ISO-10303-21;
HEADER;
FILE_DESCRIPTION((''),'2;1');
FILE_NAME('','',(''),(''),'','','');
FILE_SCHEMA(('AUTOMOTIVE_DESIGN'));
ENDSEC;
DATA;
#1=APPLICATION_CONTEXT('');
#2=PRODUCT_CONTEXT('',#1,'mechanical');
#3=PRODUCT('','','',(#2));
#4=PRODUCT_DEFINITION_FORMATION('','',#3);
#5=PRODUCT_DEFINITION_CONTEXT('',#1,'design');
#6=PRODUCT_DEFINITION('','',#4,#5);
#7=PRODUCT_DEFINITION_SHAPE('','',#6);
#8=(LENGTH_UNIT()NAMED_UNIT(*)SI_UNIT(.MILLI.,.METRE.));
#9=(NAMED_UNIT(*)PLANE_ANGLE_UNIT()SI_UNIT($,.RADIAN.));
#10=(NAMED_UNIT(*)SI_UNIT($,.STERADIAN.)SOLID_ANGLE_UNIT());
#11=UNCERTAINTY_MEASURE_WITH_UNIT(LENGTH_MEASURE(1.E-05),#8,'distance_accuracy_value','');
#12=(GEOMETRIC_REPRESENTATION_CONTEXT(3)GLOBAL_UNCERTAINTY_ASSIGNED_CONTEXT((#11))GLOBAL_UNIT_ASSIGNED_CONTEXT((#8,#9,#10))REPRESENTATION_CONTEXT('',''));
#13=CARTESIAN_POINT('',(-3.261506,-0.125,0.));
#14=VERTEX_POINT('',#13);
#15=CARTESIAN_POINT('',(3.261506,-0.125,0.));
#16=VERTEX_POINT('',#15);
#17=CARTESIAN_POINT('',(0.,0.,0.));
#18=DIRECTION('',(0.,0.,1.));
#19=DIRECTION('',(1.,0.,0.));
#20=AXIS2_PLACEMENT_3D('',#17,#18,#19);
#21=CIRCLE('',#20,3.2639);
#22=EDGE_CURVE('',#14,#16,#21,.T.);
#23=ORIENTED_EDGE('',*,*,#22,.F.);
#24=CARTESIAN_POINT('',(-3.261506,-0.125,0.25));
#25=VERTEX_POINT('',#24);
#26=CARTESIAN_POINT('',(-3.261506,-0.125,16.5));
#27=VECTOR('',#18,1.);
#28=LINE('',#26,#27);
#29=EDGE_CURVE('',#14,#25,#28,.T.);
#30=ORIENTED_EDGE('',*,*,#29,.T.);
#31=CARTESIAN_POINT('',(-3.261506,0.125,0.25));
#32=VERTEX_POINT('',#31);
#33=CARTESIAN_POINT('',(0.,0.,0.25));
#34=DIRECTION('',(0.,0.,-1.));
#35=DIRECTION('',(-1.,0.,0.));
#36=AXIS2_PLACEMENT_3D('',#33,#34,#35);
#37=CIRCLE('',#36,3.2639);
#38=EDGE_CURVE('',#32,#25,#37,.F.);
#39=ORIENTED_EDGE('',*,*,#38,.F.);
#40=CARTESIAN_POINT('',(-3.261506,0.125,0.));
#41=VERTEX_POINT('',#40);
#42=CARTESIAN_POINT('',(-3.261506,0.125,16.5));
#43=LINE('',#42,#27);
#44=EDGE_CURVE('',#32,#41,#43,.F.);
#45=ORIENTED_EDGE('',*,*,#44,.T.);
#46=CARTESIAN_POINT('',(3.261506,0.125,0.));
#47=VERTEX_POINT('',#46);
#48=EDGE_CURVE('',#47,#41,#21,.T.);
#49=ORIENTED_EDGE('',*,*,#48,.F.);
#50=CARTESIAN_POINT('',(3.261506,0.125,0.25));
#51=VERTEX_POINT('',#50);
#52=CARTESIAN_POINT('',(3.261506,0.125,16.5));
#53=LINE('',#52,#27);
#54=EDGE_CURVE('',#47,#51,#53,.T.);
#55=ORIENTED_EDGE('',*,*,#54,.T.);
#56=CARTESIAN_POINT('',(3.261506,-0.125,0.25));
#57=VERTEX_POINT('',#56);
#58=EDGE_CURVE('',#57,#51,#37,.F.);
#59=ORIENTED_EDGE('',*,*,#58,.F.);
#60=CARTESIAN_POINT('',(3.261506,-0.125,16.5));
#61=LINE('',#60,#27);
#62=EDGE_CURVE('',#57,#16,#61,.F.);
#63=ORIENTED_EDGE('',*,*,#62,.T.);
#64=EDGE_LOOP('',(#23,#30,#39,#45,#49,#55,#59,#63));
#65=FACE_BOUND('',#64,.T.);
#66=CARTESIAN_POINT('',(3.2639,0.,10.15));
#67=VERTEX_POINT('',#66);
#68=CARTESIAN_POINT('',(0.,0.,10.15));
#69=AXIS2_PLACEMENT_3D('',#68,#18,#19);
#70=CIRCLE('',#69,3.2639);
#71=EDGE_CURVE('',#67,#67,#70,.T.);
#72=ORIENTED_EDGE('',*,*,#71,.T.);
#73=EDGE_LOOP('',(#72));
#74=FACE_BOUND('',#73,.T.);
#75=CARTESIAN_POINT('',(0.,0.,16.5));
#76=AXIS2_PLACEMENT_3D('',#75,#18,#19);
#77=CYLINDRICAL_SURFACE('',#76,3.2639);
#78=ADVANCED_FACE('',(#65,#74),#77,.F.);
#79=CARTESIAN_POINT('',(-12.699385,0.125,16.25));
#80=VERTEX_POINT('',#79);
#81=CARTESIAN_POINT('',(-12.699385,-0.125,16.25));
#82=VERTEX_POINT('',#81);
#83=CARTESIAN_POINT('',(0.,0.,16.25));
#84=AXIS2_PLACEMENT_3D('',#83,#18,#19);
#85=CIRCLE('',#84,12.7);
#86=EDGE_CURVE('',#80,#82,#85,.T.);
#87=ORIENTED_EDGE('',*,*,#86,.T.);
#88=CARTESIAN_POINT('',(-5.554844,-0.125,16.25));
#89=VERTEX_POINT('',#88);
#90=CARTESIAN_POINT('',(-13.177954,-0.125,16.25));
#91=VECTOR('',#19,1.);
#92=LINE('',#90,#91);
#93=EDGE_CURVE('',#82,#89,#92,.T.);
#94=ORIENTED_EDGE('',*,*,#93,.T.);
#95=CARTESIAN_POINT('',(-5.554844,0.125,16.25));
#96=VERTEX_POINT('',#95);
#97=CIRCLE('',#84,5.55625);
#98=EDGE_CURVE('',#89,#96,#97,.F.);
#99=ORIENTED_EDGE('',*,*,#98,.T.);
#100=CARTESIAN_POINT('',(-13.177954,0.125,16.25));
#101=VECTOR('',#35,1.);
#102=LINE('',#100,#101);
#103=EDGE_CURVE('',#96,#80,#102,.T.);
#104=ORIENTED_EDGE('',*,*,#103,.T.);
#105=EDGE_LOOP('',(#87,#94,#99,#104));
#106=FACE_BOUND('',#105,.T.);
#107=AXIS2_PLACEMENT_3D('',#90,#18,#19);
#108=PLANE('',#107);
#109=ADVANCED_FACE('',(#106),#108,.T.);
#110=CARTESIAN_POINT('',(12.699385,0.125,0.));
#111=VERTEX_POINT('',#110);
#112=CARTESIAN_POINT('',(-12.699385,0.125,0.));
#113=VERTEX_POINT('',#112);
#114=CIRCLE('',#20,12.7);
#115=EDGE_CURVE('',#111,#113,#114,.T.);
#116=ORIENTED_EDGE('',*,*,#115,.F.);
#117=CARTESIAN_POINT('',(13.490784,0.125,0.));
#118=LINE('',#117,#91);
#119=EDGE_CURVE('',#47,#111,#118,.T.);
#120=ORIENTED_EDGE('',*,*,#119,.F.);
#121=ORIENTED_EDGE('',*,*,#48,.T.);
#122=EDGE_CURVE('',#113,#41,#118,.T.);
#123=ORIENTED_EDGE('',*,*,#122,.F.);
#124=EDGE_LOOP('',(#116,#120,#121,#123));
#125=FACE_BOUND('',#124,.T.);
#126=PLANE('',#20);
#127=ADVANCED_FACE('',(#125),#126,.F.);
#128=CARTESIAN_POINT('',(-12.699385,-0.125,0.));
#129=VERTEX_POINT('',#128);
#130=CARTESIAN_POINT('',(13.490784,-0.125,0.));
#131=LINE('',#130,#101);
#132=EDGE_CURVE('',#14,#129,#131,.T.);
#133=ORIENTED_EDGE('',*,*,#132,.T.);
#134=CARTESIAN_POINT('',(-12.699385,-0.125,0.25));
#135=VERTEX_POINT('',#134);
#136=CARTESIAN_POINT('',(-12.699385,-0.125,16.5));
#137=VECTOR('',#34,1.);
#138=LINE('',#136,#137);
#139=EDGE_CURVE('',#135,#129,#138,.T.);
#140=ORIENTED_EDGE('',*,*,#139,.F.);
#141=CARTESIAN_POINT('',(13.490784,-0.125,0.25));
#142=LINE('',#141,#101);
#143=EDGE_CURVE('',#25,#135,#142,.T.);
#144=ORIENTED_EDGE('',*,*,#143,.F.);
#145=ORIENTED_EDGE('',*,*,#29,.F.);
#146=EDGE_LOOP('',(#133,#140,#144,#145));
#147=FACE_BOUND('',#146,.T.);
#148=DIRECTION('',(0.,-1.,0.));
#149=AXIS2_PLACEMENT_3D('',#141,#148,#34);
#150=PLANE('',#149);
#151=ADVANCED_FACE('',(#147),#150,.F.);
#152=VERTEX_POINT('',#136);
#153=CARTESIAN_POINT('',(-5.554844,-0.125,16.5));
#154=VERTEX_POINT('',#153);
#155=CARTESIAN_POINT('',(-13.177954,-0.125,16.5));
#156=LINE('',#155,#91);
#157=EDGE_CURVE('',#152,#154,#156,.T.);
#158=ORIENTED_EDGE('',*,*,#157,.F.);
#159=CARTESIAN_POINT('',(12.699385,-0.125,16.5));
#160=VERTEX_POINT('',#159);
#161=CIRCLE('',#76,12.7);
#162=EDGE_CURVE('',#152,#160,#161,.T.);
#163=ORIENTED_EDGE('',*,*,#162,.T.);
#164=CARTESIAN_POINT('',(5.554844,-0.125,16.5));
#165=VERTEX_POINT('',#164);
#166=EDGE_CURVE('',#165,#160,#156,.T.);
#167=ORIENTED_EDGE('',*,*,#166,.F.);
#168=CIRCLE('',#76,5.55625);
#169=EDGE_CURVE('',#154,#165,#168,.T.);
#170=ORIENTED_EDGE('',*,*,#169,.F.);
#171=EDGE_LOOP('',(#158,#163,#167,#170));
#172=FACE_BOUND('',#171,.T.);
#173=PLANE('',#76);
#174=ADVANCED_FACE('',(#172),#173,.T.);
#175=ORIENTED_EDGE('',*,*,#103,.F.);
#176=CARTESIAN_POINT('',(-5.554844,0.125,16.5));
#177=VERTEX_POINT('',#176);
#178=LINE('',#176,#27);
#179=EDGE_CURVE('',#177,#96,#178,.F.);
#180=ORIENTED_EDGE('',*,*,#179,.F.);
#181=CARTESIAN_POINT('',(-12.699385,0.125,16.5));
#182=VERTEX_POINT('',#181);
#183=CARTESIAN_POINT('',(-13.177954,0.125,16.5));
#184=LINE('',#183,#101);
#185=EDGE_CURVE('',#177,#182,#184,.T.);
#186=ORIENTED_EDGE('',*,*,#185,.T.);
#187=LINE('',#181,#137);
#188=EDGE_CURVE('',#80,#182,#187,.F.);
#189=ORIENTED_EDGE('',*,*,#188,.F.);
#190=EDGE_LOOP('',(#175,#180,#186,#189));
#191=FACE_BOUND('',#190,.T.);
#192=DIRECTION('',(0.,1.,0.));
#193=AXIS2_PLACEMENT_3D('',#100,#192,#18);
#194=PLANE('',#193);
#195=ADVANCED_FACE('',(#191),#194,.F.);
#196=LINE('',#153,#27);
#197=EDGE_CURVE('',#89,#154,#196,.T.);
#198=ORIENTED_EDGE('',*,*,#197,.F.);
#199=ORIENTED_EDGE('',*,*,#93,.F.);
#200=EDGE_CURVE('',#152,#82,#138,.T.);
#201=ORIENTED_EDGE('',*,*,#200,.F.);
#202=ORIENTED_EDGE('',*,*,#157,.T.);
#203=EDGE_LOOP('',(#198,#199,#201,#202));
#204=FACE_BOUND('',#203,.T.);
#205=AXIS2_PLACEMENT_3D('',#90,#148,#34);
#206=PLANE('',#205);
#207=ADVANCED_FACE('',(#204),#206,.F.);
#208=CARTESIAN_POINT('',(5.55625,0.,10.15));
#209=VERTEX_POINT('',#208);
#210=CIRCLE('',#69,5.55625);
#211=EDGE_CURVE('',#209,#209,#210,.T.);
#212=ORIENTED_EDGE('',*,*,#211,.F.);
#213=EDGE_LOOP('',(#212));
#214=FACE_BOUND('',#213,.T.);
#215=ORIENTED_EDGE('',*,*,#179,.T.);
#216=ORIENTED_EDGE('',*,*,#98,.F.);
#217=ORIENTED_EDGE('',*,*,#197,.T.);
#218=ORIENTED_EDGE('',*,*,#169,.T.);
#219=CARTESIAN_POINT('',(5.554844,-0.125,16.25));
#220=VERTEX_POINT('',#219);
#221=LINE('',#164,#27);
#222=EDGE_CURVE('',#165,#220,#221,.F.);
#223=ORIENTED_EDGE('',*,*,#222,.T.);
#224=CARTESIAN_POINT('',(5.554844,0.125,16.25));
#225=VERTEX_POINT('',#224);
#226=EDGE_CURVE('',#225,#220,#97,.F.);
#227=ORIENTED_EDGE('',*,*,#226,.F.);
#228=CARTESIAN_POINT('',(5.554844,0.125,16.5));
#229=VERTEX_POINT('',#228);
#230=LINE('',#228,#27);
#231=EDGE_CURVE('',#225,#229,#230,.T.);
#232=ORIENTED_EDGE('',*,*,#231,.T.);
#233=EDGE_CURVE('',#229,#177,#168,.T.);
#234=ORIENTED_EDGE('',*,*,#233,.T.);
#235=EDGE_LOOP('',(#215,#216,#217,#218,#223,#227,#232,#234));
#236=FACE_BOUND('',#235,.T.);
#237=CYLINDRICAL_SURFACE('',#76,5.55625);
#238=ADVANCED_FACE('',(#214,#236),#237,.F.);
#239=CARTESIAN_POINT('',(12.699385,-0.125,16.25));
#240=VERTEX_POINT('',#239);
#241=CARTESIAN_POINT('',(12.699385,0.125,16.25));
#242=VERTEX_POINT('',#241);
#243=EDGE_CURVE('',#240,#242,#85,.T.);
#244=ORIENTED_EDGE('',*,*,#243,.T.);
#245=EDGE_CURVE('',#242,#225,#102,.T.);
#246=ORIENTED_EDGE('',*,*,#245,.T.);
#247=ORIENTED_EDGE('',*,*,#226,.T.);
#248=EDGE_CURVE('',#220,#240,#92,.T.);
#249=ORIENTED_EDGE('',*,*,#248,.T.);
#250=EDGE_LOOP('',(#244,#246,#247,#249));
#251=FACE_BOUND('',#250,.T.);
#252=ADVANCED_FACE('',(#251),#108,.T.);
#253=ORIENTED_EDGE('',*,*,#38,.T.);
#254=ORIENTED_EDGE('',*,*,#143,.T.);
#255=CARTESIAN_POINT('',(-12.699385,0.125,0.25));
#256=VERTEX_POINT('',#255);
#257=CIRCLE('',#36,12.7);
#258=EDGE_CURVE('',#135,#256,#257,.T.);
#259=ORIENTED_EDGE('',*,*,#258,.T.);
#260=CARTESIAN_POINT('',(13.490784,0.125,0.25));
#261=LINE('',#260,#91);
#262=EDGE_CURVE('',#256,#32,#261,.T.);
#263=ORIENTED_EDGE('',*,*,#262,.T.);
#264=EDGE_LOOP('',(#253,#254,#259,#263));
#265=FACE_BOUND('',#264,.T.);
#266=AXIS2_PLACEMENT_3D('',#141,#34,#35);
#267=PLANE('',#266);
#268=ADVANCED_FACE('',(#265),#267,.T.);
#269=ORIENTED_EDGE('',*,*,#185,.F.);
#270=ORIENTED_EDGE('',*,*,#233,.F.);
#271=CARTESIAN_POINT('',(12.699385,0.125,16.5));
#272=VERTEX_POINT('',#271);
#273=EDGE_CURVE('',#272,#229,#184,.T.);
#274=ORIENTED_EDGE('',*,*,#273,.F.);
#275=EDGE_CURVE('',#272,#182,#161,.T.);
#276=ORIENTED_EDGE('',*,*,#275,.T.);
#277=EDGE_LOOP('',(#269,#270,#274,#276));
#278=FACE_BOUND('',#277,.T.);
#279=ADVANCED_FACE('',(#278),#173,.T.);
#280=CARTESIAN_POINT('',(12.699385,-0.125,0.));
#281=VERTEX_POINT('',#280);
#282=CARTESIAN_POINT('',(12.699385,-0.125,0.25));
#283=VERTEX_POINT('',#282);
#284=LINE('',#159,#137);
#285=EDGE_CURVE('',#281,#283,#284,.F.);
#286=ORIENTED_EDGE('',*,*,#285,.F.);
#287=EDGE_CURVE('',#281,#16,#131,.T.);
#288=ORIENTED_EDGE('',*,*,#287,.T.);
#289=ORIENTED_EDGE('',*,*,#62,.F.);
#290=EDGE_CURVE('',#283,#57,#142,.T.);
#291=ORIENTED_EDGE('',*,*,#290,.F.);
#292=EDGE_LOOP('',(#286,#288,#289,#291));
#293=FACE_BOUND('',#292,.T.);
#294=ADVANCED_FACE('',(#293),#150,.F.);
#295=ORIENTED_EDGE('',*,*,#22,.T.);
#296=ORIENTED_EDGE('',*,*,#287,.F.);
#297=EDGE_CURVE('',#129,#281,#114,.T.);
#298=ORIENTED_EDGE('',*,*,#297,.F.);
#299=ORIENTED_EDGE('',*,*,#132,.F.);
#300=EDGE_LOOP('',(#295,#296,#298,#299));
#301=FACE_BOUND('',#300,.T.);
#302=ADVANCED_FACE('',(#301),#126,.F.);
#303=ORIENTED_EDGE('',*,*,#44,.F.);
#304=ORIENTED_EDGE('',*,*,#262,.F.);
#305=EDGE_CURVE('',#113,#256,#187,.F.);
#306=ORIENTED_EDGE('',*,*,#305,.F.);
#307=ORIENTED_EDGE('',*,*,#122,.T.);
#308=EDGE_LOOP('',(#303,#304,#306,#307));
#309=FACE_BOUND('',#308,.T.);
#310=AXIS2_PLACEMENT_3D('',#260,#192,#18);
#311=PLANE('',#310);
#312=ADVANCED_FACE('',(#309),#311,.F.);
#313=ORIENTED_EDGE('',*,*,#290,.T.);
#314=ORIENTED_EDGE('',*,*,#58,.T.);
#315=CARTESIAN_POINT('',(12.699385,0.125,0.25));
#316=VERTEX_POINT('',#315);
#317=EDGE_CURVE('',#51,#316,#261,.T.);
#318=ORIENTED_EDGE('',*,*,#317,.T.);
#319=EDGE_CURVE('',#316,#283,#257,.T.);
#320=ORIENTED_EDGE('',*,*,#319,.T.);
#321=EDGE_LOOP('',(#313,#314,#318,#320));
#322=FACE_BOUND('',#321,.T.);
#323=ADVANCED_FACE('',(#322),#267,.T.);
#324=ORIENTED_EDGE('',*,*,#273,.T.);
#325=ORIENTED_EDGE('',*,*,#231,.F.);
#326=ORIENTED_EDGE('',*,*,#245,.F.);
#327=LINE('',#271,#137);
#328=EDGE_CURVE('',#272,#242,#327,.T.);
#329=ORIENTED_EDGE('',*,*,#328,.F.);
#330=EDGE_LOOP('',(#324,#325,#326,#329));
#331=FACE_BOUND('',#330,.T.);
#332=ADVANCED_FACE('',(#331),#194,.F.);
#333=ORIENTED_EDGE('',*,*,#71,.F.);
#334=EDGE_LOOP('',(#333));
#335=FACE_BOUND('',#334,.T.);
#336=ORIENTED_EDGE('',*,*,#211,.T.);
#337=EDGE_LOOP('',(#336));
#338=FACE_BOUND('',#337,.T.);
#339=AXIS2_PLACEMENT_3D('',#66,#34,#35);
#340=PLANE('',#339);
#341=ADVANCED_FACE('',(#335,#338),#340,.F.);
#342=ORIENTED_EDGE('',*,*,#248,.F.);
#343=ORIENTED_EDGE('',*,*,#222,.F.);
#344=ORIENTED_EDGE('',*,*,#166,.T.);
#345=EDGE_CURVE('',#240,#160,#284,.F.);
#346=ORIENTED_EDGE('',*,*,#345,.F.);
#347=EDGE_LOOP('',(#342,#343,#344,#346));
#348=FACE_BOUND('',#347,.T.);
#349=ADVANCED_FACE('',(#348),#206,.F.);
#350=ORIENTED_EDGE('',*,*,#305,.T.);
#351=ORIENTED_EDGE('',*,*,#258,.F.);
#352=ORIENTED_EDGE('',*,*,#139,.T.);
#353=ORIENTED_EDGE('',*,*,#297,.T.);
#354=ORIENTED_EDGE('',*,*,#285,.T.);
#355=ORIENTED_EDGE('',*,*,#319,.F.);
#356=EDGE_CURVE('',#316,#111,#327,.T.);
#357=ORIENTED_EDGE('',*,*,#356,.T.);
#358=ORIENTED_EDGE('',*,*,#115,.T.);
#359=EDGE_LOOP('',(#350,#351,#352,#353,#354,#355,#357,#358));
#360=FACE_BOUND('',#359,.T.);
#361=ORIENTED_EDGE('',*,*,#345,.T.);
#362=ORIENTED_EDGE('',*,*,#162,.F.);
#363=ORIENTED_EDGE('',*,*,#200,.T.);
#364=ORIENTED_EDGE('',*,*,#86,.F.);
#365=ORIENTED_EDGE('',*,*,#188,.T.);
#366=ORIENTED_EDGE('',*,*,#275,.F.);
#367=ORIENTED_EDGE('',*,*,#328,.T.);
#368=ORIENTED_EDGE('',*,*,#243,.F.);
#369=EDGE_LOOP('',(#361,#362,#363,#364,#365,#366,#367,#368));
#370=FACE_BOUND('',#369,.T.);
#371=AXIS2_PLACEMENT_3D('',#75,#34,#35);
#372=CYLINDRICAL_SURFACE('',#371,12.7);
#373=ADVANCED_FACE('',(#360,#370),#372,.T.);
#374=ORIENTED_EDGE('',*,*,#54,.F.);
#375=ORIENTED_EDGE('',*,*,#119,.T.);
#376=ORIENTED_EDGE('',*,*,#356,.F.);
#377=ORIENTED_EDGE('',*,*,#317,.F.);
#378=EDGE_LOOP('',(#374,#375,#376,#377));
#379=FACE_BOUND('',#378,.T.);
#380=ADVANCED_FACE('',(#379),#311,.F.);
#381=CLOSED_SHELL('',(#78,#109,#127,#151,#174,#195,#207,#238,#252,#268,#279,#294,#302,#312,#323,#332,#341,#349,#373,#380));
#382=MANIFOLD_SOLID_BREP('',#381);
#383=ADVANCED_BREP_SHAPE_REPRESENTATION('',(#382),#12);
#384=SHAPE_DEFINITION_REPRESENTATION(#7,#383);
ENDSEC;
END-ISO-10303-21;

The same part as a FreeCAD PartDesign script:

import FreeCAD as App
import Part
import Sketcher
from FreeCAD import Vector
Q = App.Units.Quantity

doc = App.newDocument("Part")
body = doc.addObject("PartDesign::Body", "Body")

# Sketch on XY plane
sketch1 = body.newObject("Sketcher::SketchObject", "Sketch")
sketch1.AttachmentSupport = (doc.getObject("XY_Plane"), [""])
sketch1.MapMode = "FlatFace"
sketch1.addGeometry(Part.Circle(Vector(0, 0, 0), Vector(0, 0, 1), 13), False)
sketch1.addConstraint([
    Sketcher.Constraint("Coincident", 0, 3, -1, 1),
    Sketcher.Constraint("Diameter", 0, Q("1 in")),
])
pad1 = body.newObject("PartDesign::Pad", "Pad")
pad1.Profile = sketch1
pad1.Length = 16.5

# Sketch on XY plane
sketch2 = body.newObject("Sketcher::SketchObject", "Sketch001")
sketch2.AttachmentSupport = (doc.getObject("XY_Plane"), [""])
sketch2.MapMode = "FlatFace"
sketch2.AttachmentOffset = App.Placement(Vector(0, 0, 16.5), App.Rotation())
sketch2.addGeometry(Part.Circle(Vector(0, 0, 0), Vector(0, 0, 1), 3.3), False)
sketch2.addConstraint([
    Sketcher.Constraint("Coincident", 0, 3, -1, 1),
    Sketcher.Constraint("Diameter", 0, Q("0.257 in")),
])
doc.recompute()
hole = body.newObject("PartDesign::Hole", "Hole")
hole.Profile = sketch2
hole.ThreadType = "None"
hole.Diameter = Q("0.257 in")
hole.DepthType = "ThroughAll"
hole.HoleCutType = "Counterbore"
hole.HoleCutDiameter = Q("0.4375 in")
hole.HoleCutDepth = Q("0.25 in")

# Sketch on XY plane
sketch3 = body.newObject("Sketcher::SketchObject", "Sketch002")
sketch3.AttachmentSupport = (doc.getObject("XY_Plane"), [""])
sketch3.MapMode = "FlatFace"
sketch3.AttachmentOffset = App.Placement(Vector(0, 0, 16.5), App.Rotation())
sketch3.addGeometry([
    Part.LineSegment(Vector(-13.18, 0.12, 0), Vector(-13.18, -0.12, 0)),
    Part.LineSegment(Vector(-13.18, -0.12, 0), Vector(13.76, -0.12, 0)),
    Part.LineSegment(Vector(13.76, -0.12, 0), Vector(13.76, 0.12, 0)),
    Part.LineSegment(Vector(13.76, 0.12, 0), Vector(-13.18, 0.12, 0)),
], False)
sketch3.addConstraint([
    Sketcher.Constraint("Coincident", 0, 2, 1, 1),
    Sketcher.Constraint("Coincident", 1, 2, 2, 1),
    Sketcher.Constraint("Coincident", 2, 2, 3, 1),
    Sketcher.Constraint("Coincident", 3, 2, 0, 1),
    Sketcher.Constraint("Vertical", 0),
    Sketcher.Constraint("Horizontal", 1),
    Sketcher.Constraint("Vertical", 2),
    Sketcher.Constraint("Horizontal", 3),
    Sketcher.Constraint("DistanceY", 0, 2, 0, 1, 0.25),
    Sketcher.Constraint("DistanceY", 0, 2, -1, 1, 0.125),
    Sketcher.Constraint("DistanceX", 1, 1, 1, 2, 26.942464),
    Sketcher.Constraint("DistanceX", -1, 1, 1, 2, 13.76451),
])
pocket1 = body.newObject("PartDesign::Pocket", "Pocket")
pocket1.Profile = sketch3
pocket1.Length = 0.25

# Sketch on XY plane
sketch4 = body.newObject("Sketcher::SketchObject", "Sketch003")
sketch4.AttachmentSupport = (doc.getObject("XY_Plane"), [""])
sketch4.MapMode = "FlatFace"
sketch4.addGeometry([
    Part.LineSegment(Vector(13.49, 0.12, 0), Vector(13.49, -0.12, 0)),
    Part.LineSegment(Vector(13.49, -0.12, 0), Vector(-14, -0.12, 0)),
    Part.LineSegment(Vector(-14, -0.12, 0), Vector(-14, 0.12, 0)),
    Part.LineSegment(Vector(-14, 0.12, 0), Vector(13.49, 0.12, 0)),
], False)
sketch4.addConstraint([
    Sketcher.Constraint("Coincident", 0, 2, 1, 1),
    Sketcher.Constraint("Coincident", 1, 2, 2, 1),
    Sketcher.Constraint("Coincident", 2, 2, 3, 1),
    Sketcher.Constraint("Coincident", 3, 2, 0, 1),
    Sketcher.Constraint("Vertical", 0),
    Sketcher.Constraint("Horizontal", 1),
    Sketcher.Constraint("Vertical", 2),
    Sketcher.Constraint("Horizontal", 3),
    Sketcher.Constraint("DistanceY", 0, 2, 0, 1, 0.25),
    Sketcher.Constraint("DistanceY", 0, 2, -1, 1, 0.125),
    Sketcher.Constraint("DistanceX", 1, 2, 1, 1, 27.489916),
    Sketcher.Constraint("DistanceX", -1, 1, 0, 2, 13.490784),
])
pocket2 = body.newObject("PartDesign::Pocket", "Pocket001")
pocket2.Profile = sketch4
pocket2.Length = 0.25
pocket2.Reversed = True

doc.recompute()
